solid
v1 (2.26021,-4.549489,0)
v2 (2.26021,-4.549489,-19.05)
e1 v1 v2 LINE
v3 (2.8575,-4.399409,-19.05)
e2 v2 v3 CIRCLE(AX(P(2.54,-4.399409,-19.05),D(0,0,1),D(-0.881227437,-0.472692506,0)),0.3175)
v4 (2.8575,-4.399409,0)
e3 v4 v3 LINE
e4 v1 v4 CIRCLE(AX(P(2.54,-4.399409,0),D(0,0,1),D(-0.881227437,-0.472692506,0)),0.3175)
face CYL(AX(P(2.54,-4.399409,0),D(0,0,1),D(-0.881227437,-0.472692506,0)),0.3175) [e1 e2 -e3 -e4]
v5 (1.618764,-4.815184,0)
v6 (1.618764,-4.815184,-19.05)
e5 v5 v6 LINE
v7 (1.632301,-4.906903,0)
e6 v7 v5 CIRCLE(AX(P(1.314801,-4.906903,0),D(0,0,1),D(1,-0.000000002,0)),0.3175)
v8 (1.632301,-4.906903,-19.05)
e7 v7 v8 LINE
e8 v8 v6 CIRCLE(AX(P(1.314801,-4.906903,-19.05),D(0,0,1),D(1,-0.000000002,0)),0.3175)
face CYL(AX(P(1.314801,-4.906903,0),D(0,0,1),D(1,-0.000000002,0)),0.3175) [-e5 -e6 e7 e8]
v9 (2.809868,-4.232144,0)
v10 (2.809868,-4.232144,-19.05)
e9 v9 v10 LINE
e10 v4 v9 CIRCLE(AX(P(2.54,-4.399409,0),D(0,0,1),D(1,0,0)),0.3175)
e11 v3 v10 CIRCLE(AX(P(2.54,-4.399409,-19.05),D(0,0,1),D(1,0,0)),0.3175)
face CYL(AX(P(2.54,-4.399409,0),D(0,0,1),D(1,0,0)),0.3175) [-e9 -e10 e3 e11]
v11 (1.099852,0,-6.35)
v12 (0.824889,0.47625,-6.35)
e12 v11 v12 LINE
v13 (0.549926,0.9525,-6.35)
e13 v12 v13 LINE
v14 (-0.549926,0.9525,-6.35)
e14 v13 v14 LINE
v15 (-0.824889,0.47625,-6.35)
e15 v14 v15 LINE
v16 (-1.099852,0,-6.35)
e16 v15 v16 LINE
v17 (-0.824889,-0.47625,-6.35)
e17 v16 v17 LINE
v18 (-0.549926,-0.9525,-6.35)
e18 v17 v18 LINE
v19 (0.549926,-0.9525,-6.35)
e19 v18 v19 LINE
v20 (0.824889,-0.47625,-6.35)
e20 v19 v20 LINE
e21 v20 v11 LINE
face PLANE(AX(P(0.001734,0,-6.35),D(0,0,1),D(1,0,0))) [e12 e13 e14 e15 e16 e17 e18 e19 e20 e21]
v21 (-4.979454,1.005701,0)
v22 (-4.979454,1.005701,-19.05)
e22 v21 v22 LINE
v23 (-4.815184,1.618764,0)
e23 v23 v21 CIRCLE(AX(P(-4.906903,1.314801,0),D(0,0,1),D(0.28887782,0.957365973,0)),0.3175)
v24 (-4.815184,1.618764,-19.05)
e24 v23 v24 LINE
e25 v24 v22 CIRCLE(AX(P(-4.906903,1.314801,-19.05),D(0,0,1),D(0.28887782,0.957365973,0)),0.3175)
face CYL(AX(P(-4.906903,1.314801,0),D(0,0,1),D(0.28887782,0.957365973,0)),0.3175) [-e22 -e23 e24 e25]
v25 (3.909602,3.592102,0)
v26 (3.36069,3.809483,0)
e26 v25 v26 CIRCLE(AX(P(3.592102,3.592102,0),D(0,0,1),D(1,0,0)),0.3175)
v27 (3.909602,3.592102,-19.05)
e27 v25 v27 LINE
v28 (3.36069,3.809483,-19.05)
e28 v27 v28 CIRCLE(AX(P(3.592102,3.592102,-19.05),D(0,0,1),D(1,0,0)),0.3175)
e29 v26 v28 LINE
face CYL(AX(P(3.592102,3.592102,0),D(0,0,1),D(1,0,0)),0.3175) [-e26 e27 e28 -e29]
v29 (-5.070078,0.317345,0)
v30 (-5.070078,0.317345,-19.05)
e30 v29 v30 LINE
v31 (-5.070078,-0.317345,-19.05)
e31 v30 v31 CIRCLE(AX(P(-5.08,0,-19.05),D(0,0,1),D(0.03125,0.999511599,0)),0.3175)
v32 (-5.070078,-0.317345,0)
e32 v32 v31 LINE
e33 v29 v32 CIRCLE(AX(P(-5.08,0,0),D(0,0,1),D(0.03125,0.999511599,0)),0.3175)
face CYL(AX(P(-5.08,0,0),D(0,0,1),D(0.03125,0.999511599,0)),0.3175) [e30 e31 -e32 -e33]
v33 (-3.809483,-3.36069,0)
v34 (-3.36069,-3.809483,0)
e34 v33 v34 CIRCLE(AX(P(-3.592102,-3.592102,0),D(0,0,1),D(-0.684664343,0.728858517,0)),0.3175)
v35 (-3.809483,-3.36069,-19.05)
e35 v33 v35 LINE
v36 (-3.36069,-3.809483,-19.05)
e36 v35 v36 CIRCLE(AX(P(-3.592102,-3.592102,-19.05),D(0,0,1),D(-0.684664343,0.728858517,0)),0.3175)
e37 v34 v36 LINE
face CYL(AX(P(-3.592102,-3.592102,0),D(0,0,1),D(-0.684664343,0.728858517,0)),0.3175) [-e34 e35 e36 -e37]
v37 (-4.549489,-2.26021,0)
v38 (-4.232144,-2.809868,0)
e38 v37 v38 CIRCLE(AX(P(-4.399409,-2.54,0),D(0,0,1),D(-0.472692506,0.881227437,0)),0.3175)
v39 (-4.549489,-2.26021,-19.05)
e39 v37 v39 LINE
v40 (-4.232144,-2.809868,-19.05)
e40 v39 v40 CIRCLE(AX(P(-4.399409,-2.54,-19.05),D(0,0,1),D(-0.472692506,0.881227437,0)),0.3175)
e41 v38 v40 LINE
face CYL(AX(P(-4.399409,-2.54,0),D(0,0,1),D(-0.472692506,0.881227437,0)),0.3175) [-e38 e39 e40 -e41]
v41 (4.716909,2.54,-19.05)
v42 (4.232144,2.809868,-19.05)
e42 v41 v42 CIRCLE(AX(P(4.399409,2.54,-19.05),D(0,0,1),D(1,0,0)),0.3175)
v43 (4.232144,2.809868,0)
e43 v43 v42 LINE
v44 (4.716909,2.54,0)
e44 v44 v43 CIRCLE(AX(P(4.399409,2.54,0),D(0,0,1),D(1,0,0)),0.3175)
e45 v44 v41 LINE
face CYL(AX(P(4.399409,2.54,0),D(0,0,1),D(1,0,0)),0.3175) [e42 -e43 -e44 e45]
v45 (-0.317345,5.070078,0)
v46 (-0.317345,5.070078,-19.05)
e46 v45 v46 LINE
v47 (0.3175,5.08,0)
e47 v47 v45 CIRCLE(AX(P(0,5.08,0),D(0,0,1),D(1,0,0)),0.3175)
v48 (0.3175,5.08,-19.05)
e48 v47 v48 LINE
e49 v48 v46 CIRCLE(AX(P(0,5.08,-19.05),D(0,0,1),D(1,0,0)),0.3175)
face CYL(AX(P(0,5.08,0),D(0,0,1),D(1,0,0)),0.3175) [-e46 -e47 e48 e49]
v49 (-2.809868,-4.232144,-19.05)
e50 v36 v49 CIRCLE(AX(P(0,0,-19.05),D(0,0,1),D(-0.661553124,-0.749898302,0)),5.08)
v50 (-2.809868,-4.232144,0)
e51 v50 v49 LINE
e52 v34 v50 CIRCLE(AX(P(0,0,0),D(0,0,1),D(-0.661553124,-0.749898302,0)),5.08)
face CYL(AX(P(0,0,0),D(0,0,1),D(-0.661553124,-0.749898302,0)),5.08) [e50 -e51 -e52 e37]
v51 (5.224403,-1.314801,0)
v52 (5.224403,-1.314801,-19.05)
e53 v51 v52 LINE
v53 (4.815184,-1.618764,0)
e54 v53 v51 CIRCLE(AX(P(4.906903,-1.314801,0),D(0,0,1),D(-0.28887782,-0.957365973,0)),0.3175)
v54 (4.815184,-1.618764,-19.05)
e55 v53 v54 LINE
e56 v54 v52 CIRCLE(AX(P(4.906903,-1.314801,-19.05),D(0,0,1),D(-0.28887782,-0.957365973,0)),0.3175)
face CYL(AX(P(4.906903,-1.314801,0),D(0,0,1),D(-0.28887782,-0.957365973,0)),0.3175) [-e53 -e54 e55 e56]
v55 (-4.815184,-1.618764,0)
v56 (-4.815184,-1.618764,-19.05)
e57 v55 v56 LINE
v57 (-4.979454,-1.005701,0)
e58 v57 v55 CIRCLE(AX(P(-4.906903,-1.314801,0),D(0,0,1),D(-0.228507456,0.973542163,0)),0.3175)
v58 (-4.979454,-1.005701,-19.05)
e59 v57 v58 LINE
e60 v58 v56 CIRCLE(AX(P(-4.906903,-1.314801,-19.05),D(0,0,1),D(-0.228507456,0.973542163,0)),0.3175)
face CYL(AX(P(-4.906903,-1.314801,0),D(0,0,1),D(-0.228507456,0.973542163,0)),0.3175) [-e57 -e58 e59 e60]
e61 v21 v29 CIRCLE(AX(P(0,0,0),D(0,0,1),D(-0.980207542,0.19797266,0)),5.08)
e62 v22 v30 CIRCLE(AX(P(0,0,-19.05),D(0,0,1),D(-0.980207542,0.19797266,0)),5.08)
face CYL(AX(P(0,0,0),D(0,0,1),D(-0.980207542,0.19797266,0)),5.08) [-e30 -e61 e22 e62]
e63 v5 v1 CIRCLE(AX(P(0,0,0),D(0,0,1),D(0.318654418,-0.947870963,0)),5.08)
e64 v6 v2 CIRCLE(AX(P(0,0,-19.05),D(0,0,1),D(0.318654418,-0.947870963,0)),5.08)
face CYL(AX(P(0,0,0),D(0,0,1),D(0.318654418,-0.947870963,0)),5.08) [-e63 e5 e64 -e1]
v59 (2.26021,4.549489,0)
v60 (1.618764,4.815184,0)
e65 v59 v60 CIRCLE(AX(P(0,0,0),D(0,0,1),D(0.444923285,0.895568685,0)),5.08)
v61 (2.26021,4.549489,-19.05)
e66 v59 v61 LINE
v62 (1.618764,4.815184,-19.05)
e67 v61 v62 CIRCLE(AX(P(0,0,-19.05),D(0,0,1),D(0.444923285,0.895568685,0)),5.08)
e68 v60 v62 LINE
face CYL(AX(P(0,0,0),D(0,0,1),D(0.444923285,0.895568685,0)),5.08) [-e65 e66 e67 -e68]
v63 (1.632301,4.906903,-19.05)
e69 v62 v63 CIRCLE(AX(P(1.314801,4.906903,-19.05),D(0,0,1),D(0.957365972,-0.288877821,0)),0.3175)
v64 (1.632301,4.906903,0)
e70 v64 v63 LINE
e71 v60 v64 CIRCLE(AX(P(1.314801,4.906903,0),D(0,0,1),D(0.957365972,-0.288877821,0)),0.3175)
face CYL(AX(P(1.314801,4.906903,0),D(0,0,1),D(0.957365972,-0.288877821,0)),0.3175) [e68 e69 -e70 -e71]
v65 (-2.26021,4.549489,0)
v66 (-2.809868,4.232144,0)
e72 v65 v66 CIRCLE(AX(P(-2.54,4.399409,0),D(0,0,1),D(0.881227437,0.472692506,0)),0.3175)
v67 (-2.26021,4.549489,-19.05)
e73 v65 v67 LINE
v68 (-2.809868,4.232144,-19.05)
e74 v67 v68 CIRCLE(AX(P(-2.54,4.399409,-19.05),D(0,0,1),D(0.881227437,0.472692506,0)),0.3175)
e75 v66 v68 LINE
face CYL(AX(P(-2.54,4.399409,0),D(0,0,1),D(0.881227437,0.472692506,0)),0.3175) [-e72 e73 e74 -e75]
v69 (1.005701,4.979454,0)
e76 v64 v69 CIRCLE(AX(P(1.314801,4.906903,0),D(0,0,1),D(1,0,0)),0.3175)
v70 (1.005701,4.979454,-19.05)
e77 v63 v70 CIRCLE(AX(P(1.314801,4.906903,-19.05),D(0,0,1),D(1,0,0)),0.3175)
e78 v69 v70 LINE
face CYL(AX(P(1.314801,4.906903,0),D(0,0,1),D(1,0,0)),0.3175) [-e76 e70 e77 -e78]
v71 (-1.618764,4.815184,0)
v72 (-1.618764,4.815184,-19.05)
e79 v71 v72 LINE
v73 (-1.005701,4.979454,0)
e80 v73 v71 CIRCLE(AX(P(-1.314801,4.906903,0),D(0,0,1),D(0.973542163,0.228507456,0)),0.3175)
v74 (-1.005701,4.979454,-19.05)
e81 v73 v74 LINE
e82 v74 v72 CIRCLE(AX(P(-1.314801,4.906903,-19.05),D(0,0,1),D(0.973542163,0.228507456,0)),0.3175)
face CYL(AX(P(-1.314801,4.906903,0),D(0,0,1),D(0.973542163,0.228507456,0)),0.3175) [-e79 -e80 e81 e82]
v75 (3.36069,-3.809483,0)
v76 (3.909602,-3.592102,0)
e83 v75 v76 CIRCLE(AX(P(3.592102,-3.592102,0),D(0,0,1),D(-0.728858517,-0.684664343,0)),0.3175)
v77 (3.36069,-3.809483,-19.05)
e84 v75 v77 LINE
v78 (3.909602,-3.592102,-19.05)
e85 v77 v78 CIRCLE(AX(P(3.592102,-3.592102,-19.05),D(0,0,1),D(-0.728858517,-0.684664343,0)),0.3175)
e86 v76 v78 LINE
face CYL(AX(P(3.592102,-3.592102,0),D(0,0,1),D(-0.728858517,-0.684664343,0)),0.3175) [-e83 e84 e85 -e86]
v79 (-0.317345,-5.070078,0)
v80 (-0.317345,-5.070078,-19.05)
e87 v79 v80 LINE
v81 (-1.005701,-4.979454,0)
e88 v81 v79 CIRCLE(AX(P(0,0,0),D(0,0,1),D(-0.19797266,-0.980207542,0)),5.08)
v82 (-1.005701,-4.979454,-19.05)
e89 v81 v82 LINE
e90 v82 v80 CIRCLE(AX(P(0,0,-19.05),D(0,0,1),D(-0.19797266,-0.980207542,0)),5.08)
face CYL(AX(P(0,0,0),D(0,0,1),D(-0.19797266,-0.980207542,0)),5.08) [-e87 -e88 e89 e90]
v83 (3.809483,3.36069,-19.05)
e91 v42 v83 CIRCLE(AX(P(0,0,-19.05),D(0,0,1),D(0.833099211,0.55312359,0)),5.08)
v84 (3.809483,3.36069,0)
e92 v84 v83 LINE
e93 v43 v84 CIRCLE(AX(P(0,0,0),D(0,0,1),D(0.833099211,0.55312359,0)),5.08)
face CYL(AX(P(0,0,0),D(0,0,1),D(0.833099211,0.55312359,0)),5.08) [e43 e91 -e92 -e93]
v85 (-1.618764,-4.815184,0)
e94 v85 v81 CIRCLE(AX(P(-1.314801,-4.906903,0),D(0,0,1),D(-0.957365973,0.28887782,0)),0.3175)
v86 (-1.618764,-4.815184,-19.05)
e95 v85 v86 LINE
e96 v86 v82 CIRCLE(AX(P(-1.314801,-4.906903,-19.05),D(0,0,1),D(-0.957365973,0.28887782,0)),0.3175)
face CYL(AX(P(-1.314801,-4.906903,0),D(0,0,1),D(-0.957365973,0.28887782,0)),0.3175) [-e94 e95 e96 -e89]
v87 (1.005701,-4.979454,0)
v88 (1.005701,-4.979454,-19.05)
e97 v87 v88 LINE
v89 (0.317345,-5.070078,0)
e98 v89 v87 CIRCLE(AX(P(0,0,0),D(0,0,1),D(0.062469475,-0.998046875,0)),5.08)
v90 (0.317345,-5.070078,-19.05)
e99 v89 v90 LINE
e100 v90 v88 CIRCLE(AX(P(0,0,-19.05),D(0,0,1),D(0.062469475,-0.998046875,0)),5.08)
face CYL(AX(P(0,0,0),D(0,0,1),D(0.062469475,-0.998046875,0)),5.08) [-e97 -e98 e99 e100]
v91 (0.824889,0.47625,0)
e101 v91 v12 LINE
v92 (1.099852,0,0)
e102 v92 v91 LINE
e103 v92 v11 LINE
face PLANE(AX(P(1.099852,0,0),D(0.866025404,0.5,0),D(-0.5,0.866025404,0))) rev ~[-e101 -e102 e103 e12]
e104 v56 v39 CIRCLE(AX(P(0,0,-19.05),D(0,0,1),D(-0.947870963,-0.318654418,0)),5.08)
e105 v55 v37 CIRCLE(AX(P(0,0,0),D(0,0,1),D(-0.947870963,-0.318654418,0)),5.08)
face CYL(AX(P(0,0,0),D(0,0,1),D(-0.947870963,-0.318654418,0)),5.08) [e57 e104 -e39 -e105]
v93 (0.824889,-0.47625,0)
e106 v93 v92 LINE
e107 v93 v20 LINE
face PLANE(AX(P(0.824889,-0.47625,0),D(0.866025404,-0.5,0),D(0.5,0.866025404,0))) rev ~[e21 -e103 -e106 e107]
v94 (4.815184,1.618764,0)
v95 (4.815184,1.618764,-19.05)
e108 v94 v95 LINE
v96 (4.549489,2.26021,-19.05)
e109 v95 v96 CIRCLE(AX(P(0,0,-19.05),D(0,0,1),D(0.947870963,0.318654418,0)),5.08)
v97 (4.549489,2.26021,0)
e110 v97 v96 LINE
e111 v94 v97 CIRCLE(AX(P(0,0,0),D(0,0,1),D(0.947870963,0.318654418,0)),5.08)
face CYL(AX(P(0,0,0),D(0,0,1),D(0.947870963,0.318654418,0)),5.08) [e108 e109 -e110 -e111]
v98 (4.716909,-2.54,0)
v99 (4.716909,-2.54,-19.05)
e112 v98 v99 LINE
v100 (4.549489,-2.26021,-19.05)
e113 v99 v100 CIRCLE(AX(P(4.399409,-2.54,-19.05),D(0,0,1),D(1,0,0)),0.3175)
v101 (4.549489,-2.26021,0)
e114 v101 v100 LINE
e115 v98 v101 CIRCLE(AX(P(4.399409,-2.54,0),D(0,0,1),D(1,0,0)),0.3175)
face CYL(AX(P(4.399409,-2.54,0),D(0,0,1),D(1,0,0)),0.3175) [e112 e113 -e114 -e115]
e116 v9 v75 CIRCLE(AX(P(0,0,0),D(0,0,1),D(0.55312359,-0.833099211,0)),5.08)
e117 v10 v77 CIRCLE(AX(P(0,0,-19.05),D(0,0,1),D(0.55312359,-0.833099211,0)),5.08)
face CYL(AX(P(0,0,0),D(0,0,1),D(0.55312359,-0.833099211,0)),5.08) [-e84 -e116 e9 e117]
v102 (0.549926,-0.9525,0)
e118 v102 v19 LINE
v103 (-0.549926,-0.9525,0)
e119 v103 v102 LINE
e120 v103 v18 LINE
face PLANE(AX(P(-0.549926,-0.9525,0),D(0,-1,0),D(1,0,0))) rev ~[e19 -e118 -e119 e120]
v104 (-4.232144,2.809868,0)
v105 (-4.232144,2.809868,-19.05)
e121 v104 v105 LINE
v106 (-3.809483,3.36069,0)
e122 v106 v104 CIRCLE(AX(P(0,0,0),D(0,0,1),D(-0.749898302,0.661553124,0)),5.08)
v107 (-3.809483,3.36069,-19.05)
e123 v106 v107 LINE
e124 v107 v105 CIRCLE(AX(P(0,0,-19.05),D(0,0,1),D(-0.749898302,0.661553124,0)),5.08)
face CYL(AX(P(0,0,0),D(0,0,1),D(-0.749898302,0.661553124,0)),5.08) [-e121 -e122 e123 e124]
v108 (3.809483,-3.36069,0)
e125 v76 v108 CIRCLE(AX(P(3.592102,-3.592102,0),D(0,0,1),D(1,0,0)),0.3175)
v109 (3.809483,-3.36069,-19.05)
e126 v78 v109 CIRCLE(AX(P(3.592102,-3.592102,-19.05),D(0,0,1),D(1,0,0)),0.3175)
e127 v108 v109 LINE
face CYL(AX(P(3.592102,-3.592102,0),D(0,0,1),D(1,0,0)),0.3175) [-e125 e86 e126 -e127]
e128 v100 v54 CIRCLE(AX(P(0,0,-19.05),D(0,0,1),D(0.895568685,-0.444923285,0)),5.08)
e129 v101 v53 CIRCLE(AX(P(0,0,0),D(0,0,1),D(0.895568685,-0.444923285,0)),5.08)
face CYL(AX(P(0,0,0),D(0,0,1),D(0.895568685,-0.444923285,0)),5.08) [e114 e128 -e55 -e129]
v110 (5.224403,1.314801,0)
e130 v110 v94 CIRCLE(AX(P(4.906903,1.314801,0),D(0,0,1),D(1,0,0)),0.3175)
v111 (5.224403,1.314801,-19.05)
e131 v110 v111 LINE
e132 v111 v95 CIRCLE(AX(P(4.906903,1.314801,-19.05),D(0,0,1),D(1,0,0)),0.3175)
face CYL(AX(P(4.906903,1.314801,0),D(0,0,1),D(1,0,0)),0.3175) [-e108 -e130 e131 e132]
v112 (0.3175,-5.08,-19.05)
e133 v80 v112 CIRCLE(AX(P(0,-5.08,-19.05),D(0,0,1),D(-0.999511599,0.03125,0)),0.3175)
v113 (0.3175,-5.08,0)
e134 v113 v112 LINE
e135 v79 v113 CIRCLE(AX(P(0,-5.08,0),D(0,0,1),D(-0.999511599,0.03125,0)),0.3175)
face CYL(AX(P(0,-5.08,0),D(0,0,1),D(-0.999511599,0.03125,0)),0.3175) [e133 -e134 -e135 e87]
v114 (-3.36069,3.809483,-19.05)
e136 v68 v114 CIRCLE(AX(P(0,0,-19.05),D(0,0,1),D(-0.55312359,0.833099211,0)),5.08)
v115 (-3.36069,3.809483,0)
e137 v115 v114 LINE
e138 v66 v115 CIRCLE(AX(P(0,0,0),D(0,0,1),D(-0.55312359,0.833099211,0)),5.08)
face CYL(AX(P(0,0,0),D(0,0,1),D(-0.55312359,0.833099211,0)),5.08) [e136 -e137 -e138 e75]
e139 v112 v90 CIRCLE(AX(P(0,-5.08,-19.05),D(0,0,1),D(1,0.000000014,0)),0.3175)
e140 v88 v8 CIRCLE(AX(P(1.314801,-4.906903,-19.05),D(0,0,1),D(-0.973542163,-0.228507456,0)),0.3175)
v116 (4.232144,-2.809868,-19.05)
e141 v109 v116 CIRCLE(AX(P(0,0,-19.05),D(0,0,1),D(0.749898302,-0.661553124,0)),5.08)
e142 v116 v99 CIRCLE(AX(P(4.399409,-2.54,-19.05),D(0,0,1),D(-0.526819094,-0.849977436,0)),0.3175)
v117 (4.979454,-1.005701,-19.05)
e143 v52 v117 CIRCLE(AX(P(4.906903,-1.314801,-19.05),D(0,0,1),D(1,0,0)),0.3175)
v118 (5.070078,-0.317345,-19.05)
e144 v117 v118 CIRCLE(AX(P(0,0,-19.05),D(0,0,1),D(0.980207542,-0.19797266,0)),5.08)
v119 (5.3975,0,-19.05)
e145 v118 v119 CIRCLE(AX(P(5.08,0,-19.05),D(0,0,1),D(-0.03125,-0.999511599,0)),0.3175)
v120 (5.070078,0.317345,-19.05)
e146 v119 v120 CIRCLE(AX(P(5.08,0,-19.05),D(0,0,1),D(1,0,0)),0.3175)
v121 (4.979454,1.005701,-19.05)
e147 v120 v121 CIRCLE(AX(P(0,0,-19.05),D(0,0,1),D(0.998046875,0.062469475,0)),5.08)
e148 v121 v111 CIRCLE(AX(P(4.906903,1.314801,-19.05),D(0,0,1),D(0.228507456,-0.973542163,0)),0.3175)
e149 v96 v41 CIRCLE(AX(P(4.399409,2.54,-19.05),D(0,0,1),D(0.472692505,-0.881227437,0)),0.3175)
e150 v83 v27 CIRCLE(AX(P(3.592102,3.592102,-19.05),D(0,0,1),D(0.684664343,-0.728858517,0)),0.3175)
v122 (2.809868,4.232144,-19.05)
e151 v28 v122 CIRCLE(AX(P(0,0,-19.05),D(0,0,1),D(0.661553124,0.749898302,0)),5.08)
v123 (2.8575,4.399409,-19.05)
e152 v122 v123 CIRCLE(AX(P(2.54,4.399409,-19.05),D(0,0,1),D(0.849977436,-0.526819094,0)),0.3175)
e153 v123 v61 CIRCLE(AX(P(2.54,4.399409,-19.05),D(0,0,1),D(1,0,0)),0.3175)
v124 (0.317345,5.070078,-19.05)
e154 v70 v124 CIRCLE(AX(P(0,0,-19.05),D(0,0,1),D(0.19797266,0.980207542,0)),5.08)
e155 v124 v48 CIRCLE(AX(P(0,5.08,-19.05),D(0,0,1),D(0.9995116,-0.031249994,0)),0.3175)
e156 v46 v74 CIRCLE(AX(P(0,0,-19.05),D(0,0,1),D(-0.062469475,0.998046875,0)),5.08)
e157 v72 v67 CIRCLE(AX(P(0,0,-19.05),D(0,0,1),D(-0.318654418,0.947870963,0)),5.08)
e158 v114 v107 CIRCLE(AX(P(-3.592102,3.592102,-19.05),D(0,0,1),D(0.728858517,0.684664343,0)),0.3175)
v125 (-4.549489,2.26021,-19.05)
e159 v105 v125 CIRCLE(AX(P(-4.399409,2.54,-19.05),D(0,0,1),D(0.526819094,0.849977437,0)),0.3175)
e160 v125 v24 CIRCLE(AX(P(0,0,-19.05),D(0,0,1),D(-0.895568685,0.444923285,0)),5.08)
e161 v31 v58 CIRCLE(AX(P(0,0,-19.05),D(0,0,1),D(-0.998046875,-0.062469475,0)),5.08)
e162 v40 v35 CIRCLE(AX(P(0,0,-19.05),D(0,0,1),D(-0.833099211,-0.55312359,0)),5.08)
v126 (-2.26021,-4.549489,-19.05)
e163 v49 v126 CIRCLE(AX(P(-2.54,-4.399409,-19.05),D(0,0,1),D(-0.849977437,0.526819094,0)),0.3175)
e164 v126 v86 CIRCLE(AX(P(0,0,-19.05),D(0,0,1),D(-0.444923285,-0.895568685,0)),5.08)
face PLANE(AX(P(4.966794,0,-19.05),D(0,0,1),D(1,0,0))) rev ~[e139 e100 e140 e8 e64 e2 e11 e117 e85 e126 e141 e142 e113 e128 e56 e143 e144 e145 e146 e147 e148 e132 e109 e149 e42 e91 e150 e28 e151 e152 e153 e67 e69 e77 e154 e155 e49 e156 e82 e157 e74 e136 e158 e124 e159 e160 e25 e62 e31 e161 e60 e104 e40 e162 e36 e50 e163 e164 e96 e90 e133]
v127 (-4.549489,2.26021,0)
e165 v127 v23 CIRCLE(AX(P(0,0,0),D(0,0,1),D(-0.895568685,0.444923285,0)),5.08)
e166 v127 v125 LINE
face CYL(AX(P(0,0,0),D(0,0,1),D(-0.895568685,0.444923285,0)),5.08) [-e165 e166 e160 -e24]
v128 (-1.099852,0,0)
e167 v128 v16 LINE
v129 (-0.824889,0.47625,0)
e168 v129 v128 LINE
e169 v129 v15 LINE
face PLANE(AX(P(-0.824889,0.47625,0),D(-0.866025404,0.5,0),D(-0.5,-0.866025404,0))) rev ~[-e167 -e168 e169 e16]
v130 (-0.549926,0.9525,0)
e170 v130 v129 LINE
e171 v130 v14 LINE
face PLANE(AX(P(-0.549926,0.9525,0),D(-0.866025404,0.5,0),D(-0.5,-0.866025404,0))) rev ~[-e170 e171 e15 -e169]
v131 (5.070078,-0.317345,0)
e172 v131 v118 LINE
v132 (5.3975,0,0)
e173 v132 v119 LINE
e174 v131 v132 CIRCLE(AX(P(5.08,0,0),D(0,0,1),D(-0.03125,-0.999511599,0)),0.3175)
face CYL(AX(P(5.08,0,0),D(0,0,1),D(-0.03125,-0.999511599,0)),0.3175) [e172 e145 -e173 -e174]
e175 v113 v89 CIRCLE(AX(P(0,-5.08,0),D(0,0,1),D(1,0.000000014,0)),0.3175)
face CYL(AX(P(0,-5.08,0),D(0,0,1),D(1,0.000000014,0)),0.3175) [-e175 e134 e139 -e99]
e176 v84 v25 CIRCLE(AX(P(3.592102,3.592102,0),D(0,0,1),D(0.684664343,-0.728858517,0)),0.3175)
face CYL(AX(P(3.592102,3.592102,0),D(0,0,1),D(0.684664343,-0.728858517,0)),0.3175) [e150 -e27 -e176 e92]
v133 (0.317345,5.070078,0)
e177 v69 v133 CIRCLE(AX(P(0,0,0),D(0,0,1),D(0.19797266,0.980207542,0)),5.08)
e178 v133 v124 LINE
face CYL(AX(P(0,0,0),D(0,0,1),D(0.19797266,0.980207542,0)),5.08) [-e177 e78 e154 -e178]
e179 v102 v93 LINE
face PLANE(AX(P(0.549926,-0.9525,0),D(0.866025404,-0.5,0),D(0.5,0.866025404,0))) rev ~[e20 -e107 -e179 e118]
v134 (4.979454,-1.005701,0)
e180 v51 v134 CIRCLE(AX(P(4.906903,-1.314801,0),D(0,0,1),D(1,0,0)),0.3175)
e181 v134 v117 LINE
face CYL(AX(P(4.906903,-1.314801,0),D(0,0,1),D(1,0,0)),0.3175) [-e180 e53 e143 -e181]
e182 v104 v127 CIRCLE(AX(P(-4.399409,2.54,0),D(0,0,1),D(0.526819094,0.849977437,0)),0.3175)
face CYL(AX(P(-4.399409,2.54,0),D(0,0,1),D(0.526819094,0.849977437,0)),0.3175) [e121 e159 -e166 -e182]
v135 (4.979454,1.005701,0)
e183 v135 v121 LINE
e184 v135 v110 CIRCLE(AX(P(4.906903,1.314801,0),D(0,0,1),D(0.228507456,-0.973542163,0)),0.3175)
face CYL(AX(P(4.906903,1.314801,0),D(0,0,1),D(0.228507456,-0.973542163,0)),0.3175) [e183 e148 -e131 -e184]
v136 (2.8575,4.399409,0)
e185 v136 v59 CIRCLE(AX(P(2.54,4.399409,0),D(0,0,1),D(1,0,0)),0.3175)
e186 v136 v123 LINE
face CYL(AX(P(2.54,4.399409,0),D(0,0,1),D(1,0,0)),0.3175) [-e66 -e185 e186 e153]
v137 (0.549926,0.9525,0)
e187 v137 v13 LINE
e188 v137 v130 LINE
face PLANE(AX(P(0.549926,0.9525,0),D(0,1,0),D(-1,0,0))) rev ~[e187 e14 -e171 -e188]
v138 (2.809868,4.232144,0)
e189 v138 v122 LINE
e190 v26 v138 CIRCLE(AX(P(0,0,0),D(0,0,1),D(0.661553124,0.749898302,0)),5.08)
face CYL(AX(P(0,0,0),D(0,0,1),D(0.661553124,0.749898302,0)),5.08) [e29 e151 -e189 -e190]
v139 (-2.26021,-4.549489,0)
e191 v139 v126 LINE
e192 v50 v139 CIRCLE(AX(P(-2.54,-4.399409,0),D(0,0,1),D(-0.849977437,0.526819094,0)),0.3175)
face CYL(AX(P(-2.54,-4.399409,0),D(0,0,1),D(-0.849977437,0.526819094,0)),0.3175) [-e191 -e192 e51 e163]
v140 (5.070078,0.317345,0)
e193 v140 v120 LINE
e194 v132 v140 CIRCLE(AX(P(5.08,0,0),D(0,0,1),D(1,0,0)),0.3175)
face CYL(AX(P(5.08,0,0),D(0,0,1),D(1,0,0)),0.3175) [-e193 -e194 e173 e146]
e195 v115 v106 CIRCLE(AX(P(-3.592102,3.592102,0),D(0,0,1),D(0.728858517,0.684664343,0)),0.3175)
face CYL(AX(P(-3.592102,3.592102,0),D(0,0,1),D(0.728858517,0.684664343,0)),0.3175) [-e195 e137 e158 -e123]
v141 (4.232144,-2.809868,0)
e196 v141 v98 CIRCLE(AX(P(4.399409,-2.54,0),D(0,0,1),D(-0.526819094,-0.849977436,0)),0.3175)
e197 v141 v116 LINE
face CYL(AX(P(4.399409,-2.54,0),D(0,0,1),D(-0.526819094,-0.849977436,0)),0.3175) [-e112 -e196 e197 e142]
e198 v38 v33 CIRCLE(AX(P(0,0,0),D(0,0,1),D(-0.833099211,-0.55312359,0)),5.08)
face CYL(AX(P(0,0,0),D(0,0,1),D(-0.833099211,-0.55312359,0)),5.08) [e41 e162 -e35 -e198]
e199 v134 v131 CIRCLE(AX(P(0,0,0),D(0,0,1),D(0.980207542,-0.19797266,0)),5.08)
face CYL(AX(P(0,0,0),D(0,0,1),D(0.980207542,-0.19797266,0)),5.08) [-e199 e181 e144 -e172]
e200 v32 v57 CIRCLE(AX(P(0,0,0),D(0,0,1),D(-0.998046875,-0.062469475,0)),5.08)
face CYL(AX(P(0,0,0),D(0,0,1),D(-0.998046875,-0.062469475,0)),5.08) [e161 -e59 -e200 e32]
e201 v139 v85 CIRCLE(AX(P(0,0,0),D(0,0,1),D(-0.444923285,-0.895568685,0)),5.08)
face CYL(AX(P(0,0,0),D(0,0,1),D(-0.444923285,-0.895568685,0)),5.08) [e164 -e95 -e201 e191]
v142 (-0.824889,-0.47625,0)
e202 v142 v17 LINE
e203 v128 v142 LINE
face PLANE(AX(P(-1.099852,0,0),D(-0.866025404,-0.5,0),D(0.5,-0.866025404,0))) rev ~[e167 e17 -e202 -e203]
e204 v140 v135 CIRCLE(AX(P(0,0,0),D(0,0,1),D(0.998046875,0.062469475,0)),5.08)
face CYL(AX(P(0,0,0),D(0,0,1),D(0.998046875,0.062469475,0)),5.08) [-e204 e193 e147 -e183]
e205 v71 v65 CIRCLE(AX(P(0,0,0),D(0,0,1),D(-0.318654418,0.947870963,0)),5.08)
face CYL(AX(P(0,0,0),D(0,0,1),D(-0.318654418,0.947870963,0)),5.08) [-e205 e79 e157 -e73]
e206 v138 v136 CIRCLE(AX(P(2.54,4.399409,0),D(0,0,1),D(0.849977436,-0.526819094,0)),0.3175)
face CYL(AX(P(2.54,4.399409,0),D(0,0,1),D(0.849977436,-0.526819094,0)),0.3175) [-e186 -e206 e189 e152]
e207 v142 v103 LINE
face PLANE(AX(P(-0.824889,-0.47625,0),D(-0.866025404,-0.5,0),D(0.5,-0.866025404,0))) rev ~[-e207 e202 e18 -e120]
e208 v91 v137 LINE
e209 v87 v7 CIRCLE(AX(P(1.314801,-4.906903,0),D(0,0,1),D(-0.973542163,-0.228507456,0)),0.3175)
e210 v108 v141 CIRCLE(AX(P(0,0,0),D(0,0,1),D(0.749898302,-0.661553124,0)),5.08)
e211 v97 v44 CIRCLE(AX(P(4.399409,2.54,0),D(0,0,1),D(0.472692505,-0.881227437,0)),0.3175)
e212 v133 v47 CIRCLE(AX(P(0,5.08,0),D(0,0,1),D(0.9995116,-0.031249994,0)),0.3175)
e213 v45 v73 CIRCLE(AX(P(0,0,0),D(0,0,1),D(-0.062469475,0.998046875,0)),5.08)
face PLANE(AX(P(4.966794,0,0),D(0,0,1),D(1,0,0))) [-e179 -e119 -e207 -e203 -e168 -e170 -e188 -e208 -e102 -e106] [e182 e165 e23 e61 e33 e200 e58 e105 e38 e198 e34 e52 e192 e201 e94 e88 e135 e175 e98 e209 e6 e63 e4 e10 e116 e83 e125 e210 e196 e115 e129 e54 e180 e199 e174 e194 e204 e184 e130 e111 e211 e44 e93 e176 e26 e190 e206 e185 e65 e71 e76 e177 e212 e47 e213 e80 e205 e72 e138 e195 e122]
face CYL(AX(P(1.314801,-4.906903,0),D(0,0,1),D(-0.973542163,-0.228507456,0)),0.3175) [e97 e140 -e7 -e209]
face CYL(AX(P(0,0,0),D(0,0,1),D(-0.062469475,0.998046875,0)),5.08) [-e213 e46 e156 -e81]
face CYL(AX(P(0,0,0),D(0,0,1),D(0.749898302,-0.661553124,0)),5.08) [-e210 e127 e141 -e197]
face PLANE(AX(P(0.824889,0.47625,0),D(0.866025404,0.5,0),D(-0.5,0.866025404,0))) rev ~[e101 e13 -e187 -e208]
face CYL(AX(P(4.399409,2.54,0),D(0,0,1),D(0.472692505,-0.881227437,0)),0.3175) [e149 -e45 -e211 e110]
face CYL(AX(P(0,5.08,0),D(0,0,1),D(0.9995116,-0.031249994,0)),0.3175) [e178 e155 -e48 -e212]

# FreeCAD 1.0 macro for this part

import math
import FreeCAD as App
import Part
import Sketcher
from FreeCAD import Vector
Q = App.Units.Quantity


def add_polygon(sketch, points):
    """Adds a closed chain of lines whose ends are joined by coincident constraints."""
    first, n = sketch.GeometryCount, len(points)
    for a, b in zip(points, points[1:] + points[:1]):
        sketch.addGeometry(Part.LineSegment(App.Vector(*a, 0), App.Vector(*b, 0)), False)
    for i in range(n):
        sketch.addConstraint(Sketcher.Constraint("Coincident", first + i, 2, first + (i + 1) % n, 1))

doc = App.newDocument("Part")
body = doc.addObject("PartDesign::Body", "Body")

# Sketch on XY plane
sketch1 = body.newObject("Sketcher::SketchObject", "Sketch")
sketch1.AttachmentSupport = (doc.getObject("XY_Plane"), [""])
sketch1.MapMode = "FlatFace"
sketch1.addGeometry(Part.ArcOfCircle(Part.Circle(Vector(5.08, 0, 0), Vector(0, 0, 1), 0.318), math.radians(-92), math.radians(0)), False)
sketch1.addGeometry(Part.ArcOfCircle(Part.Circle(Vector(5.08, 0, 0), Vector(0, 0, 1), 0.318), math.radians(0), math.radians(92)), False)
sketch1.addGeometry(Part.ArcOfCircle(Part.Circle(Vector(0, 0, 0), Vector(0, 0, 1), 5.08), math.radians(3.58), math.radians(11.42)), False)
sketch1.addGeometry(Part.ArcOfCircle(Part.Circle(Vector(4.907, 1.315, 0), Vector(0, 0, 1), 0.318), math.radians(-77), math.radians(0)), False)
sketch1.addGeometry(Part.ArcOfCircle(Part.Circle(Vector(4.907, 1.315, 0), Vector(0, 0, 1), 0.318), math.radians(0), math.radians(107)), False)
sketch1.addGeometry(Part.ArcOfCircle(Part.Circle(Vector(0, 0, 0), Vector(0, 0, 1), 5.08), math.radians(18.58), math.radians(26.42)), False)
sketch1.addGeometry(Part.ArcOfCircle(Part.Circle(Vector(4.399, 2.54, 0), Vector(0, 0, 1), 0.318), math.radians(-62), math.radians(0)), False)
sketch1.addGeometry(Part.ArcOfCircle(Part.Circle(Vector(4.399, 2.54, 0), Vector(0, 0, 1), 0.318), math.radians(0), math.radians(122)), False)
sketch1.addGeometry(Part.ArcOfCircle(Part.Circle(Vector(0, 0, 0), Vector(0, 0, 1), 5.08), math.radians(33.58), math.radians(41.42)), False)
sketch1.addGeometry(Part.ArcOfCircle(Part.Circle(Vector(3.592, 3.592, 0), Vector(0, 0, 1), 0.318), math.radians(-47), math.radians(0)), False)
sketch1.addGeometry(Part.ArcOfCircle(Part.Circle(Vector(3.592, 3.592, 0), Vector(0, 0, 1), 0.318), math.radians(0), math.radians(137)), False)
sketch1.addGeometry(Part.ArcOfCircle(Part.Circle(Vector(0, 0, 0), Vector(0, 0, 1), 5.08), math.radians(48.58), math.radians(56.42)), False)
sketch1.addGeometry(Part.ArcOfCircle(Part.Circle(Vector(2.54, 4.399, 0), Vector(0, 0, 1), 0.318), math.radians(-32), math.radians(0)), False)
sketch1.addGeometry(Part.ArcOfCircle(Part.Circle(Vector(2.54, 4.399, 0), Vector(0, 0, 1), 0.318), math.radians(0), math.radians(152)), False)
sketch1.addGeometry(Part.ArcOfCircle(Part.Circle(Vector(0, 0, 0), Vector(0, 0, 1), 5.08), math.radians(63.58), math.radians(71.42)), False)
sketch1.addGeometry(Part.ArcOfCircle(Part.Circle(Vector(1.315, 4.907, 0), Vector(0, 0, 1), 0.317), math.radians(-16.79), math.radians(0)), False)
sketch1.addGeometry(Part.ArcOfCircle(Part.Circle(Vector(1.315, 4.907, 0), Vector(0, 0, 1), 0.318), math.radians(0), math.radians(167)), False)
sketch1.addGeometry(Part.ArcOfCircle(Part.Circle(Vector(0, 0, 0), Vector(0, 0, 1), 5.08), math.radians(78.58), math.radians(86.42)), False)
sketch1.addGeometry(Part.ArcOfCircle(Part.Circle(Vector(0, 5.08, 0), Vector(0, 0, 1), 0.318), math.radians(-1.79), math.radians(0)), False)
sketch1.addGeometry(Part.ArcOfCircle(Part.Circle(Vector(0, 5.08, 0), Vector(0, 0, 1), 0.318), math.radians(0), math.radians(182)), False)
sketch1.addGeometry(Part.ArcOfCircle(Part.Circle(Vector(0, 0, 0), Vector(0, 0, 1), 5.08), math.radians(93.58), math.radians(101.42)), False)
sketch1.addGeometry(Part.ArcOfCircle(Part.Circle(Vector(-1.315, 4.907, 0), Vector(0, 0, 1), 0.318), math.radians(13), math.radians(197)), False)
sketch1.addGeometry(Part.ArcOfCircle(Part.Circle(Vector(0, 0, 0), Vector(0, 0, 1), 5.08), math.radians(108.58), math.radians(116.42)), False)
sketch1.addGeometry(Part.ArcOfCircle(Part.Circle(Vector(-2.54, 4.399, 0), Vector(0, 0, 1), 0.318), math.radians(28), math.radians(212)), False)
sketch1.addGeometry(Part.ArcOfCircle(Part.Circle(Vector(0, 0, 0), Vector(0, 0, 1), 5.08), math.radians(123.58), math.radians(131.42)), False)
sketch1.addGeometry(Part.ArcOfCircle(Part.Circle(Vector(-3.592, 3.592, 0), Vector(0, 0, 1), 0.318), math.radians(43), math.radians(227)), False)
sketch1.addGeometry(Part.ArcOfCircle(Part.Circle(Vector(0, 0, 0), Vector(0, 0, 1), 5.08), math.radians(138.58), math.radians(146.42)), False)
sketch1.addGeometry(Part.ArcOfCircle(Part.Circle(Vector(-4.399, 2.54, 0), Vector(0, 0, 1), 0.318), math.radians(58), math.radians(242)), False)
sketch1.addGeometry(Part.ArcOfCircle(Part.Circle(Vector(0, 0, 0), Vector(0, 0, 1), 5.08), math.radians(153.58), math.radians(161.42)), False)
sketch1.addGeometry(Part.ArcOfCircle(Part.Circle(Vector(-4.907, 1.315, 0), Vector(0, 0, 1), 0.318), math.radians(73), math.radians(257)), False)
sketch1.addGeometry(Part.ArcOfCircle(Part.Circle(Vector(0, 0, 0), Vector(0, 0, 1), 5.08), math.radians(168.58), math.radians(176.42)), False)
sketch1.addGeometry(Part.ArcOfCircle(Part.Circle(Vector(-5.08, 0, 0), Vector(0, 0, 1), 0.318), math.radians(88), math.radians(272)), False)
sketch1.addGeometry(Part.ArcOfCircle(Part.Circle(Vector(0, 0, 0), Vector(0, 0, 1), 5.08), math.radians(-176.42), math.radians(-168.58)), False)
sketch1.addGeometry(Part.ArcOfCircle(Part.Circle(Vector(-4.907, -1.315, 0), Vector(0, 0, 1), 0.318), math.radians(103), math.radians(287)), False)
sketch1.addGeometry(Part.ArcOfCircle(Part.Circle(Vector(0, 0, 0), Vector(0, 0, 1), 5.08), math.radians(-161.42), math.radians(-153.58)), False)
sketch1.addGeometry(Part.ArcOfCircle(Part.Circle(Vector(-4.399, -2.54, 0), Vector(0, 0, 1), 0.318), math.radians(118), math.radians(302)), False)
sketch1.addGeometry(Part.ArcOfCircle(Part.Circle(Vector(0, 0, 0), Vector(0, 0, 1), 5.08), math.radians(-146.42), math.radians(-138.58)), False)
sketch1.addGeometry(Part.ArcOfCircle(Part.Circle(Vector(-3.592, -3.592, 0), Vector(0, 0, 1), 0.318), math.radians(133), math.radians(317)), False)
sketch1.addGeometry(Part.ArcOfCircle(Part.Circle(Vector(0, 0, 0), Vector(0, 0, 1), 5.08), math.radians(-131.42), math.radians(-123.58)), False)
sketch1.addGeometry(Part.ArcOfCircle(Part.Circle(Vector(-2.54, -4.399, 0), Vector(0, 0, 1), 0.318), math.radians(148), math.radians(332)), False)
sketch1.addGeometry(Part.ArcOfCircle(Part.Circle(Vector(0, 0, 0), Vector(0, 0, 1), 5.08), math.radians(-116.42), math.radians(-108.58)), False)
sketch1.addGeometry(Part.ArcOfCircle(Part.Circle(Vector(-1.315, -4.907, 0), Vector(0, 0, 1), 0.318), math.radians(163), math.radians(347)), False)
sketch1.addGeometry(Part.ArcOfCircle(Part.Circle(Vector(0, 0, 0), Vector(0, 0, 1), 5.08), math.radians(-101.42), math.radians(-93.58)), False)
sketch1.addGeometry(Part.ArcOfCircle(Part.Circle(Vector(0, -5.08, 0), Vector(0, 0, 1), 0.318), math.radians(178), math.radians(360)), False)
sketch1.addGeometry(Part.ArcOfCircle(Part.Circle(Vector(0, -5.08, 0), Vector(0, 0, 1), 0.318), math.radians(0), math.radians(1.79)), False)
sketch1.addGeometry(Part.ArcOfCircle(Part.Circle(Vector(0, 0, 0), Vector(0, 0, 1), 5.08), math.radians(-86.42), math.radians(-78.58)), False)
sketch1.addGeometry(Part.ArcOfCircle(Part.Circle(Vector(1.315, -4.907, 0), Vector(0, 0, 1), 0.318), math.radians(-167), math.radians(0)), False)
sketch1.addGeometry(Part.ArcOfCircle(Part.Circle(Vector(1.315, -4.907, 0), Vector(0, 0, 1), 0.317), math.radians(0), math.radians(16.79)), False)
sketch1.addGeometry(Part.ArcOfCircle(Part.Circle(Vector(0, 0, 0), Vector(0, 0, 1), 5.08), math.radians(-71.42), math.radians(-63.58)), False)
sketch1.addGeometry(Part.ArcOfCircle(Part.Circle(Vector(2.54, -4.399, 0), Vector(0, 0, 1), 0.318), math.radians(-152), math.radians(0)), False)
sketch1.addGeometry(Part.ArcOfCircle(Part.Circle(Vector(2.54, -4.399, 0), Vector(0, 0, 1), 0.318), math.radians(0), math.radians(32)), False)
sketch1.addGeometry(Part.ArcOfCircle(Part.Circle(Vector(0, 0, 0), Vector(0, 0, 1), 5.08), math.radians(-56.42), math.radians(-48.58)), False)
sketch1.addGeometry(Part.ArcOfCircle(Part.Circle(Vector(3.592, -3.592, 0), Vector(0, 0, 1), 0.318), math.radians(-137), math.radians(0)), False)
sketch1.addGeometry(Part.ArcOfCircle(Part.Circle(Vector(3.592, -3.592, 0), Vector(0, 0, 1), 0.318), math.radians(0), math.radians(47)), False)
sketch1.addGeometry(Part.ArcOfCircle(Part.Circle(Vector(0, 0, 0), Vector(0, 0, 1), 5.08), math.radians(-41.42), math.radians(-33.58)), False)
sketch1.addGeometry(Part.ArcOfCircle(Part.Circle(Vector(4.399, -2.54, 0), Vector(0, 0, 1), 0.318), math.radians(-122), math.radians(0)), False)
sketch1.addGeometry(Part.ArcOfCircle(Part.Circle(Vector(4.399, -2.54, 0), Vector(0, 0, 1), 0.318), math.radians(0), math.radians(62)), False)
sketch1.addGeometry(Part.ArcOfCircle(Part.Circle(Vector(0, 0, 0), Vector(0, 0, 1), 5.08), math.radians(-26.42), math.radians(-18.58)), False)
sketch1.addGeometry(Part.ArcOfCircle(Part.Circle(Vector(4.907, -1.315, 0), Vector(0, 0, 1), 0.318), math.radians(-107), math.radians(0)), False)
sketch1.addGeometry(Part.ArcOfCircle(Part.Circle(Vector(4.907, -1.315, 0), Vector(0, 0, 1), 0.318), math.radians(0), math.radians(77)), False)
sketch1.addGeometry(Part.ArcOfCircle(Part.Circle(Vector(0, 0, 0), Vector(0, 0, 1), 5.08), math.radians(-11.42), math.radians(-3.58)), False)
sketch1.addConstraint(Sketcher.Constraint("Tangent", 0, 2, 1, 1))
sketch1.addConstraint(Sketcher.Constraint("Coincident", 1, 2, 2, 1))
sketch1.addConstraint(Sketcher.Constraint("Coincident", 2, 2, 3, 1))
sketch1.addConstraint(Sketcher.Constraint("Tangent", 3, 2, 4, 1))
sketch1.addConstraint(Sketcher.Constraint("Coincident", 4, 2, 5, 1))
sketch1.addConstraint(Sketcher.Constraint("Coincident", 5, 2, 6, 1))
sketch1.addConstraint(Sketcher.Constraint("Tangent", 6, 2, 7, 1))
sketch1.addConstraint(Sketcher.Constraint("Coincident", 7, 2, 8, 1))
sketch1.addConstraint(Sketcher.Constraint("Coincident", 8, 2, 9, 1))
sketch1.addConstraint(Sketcher.Constraint("Tangent", 9, 2, 10, 1))
sketch1.addConstraint(Sketcher.Constraint("Coincident", 10, 2, 11, 1))
sketch1.addConstraint(Sketcher.Constraint("Coincident", 11, 2, 12, 1))
sketch1.addConstraint(Sketcher.Constraint("Tangent", 12, 2, 13, 1))
sketch1.addConstraint(Sketcher.Constraint("Coincident", 13, 2, 14, 1))
sketch1.addConstraint(Sketcher.Constraint("Coincident", 14, 2, 15, 1))
sketch1.addConstraint(Sketcher.Constraint("Tangent", 15, 2, 16, 1))
sketch1.addConstraint(Sketcher.Constraint("Coincident", 16, 2, 17, 1))
sketch1.addConstraint(Sketcher.Constraint("Coincident", 17, 2, 18, 1))
sketch1.addConstraint(Sketcher.Constraint("Tangent", 18, 2, 19, 1))
sketch1.addConstraint(Sketcher.Constraint("Coincident", 19, 2, 20, 1))
sketch1.addConstraint(Sketcher.Constraint("Coincident", 20, 2, 21, 1))
sketch1.addConstraint(Sketcher.Constraint("Coincident", 21, 2, 22, 1))
sketch1.addConstraint(Sketcher.Constraint("Coincident", 22, 2, 23, 1))
sketch1.addConstraint(Sketcher.Constraint("Coincident", 23, 2, 24, 1))
sketch1.addConstraint(Sketcher.Constraint("Coincident", 24, 2, 25, 1))
sketch1.addConstraint(Sketcher.Constraint("Coincident", 25, 2, 26, 1))
sketch1.addConstraint(Sketcher.Constraint("Coincident", 26, 2, 27, 1))
sketch1.addConstraint(Sketcher.Constraint("Coincident", 27, 2, 28, 1))
sketch1.addConstraint(Sketcher.Constraint("Coincident", 28, 2, 29, 1))
sketch1.addConstraint(Sketcher.Constraint("Coincident", 29, 2, 30, 1))
sketch1.addConstraint(Sketcher.Constraint("Coincident", 30, 2, 31, 1))
sketch1.addConstraint(Sketcher.Constraint("Coincident", 31, 2, 32, 1))
sketch1.addConstraint(Sketcher.Constraint("Coincident", 32, 2, 33, 1))
sketch1.addConstraint(Sketcher.Constraint("Coincident", 33, 2, 34, 1))
sketch1.addConstraint(Sketcher.Constraint("Coincident", 34, 2, 35, 1))
sketch1.addConstraint(Sketcher.Constraint("Coincident", 35, 2, 36, 1))
sketch1.addConstraint(Sketcher.Constraint("Coincident", 36, 2, 37, 1))
sketch1.addConstraint(Sketcher.Constraint("Coincident", 37, 2, 38, 1))
sketch1.addConstraint(Sketcher.Constraint("Coincident", 38, 2, 39, 1))
sketch1.addConstraint(Sketcher.Constraint("Coincident", 39, 2, 40, 1))
sketch1.addConstraint(Sketcher.Constraint("Coincident", 40, 2, 41, 1))
sketch1.addConstraint(Sketcher.Constraint("Coincident", 41, 2, 42, 1))
sketch1.addConstraint(Sketcher.Constraint("Coincident", 42, 2, 43, 1))
sketch1.addConstraint(Sketcher.Constraint("Tangent", 43, 2, 44, 1))
sketch1.addConstraint(Sketcher.Constraint("Coincident", 44, 2, 45, 1))
sketch1.addConstraint(Sketcher.Constraint("Coincident", 45, 2, 46, 1))
sketch1.addConstraint(Sketcher.Constraint("Tangent", 46, 2, 47, 1))
sketch1.addConstraint(Sketcher.Constraint("Coincident", 47, 2, 48, 1))
sketch1.addConstraint(Sketcher.Constraint("Coincident", 48, 2, 49, 1))
sketch1.addConstraint(Sketcher.Constraint("Tangent", 49, 2, 50, 1))
sketch1.addConstraint(Sketcher.Constraint("Coincident", 50, 2, 51, 1))
sketch1.addConstraint(Sketcher.Constraint("Coincident", 51, 2, 52, 1))
sketch1.addConstraint(Sketcher.Constraint("Tangent", 52, 2, 53, 1))
sketch1.addConstraint(Sketcher.Constraint("Coincident", 53, 2, 54, 1))
sketch1.addConstraint(Sketcher.Constraint("Coincident", 54, 2, 55, 1))
sketch1.addConstraint(Sketcher.Constraint("Tangent", 55, 2, 56, 1))
sketch1.addConstraint(Sketcher.Constraint("Coincident", 56, 2, 57, 1))
sketch1.addConstraint(Sketcher.Constraint("Coincident", 57, 2, 58, 1))
sketch1.addConstraint(Sketcher.Constraint("Tangent", 58, 2, 59, 1))
sketch1.addConstraint(Sketcher.Constraint("Coincident", 59, 2, 60, 1))
sketch1.addConstraint(Sketcher.Constraint("Coincident", 60, 2, 0, 1))
sketch1.addConstraint(Sketcher.Constraint("Coincident", 2, 3, -1, 1))
sketch1.addConstraint(Sketcher.Constraint("Coincident", 5, 3, -1, 1))
sketch1.addConstraint(Sketcher.Constraint("Coincident", 8, 3, -1, 1))
sketch1.addConstraint(Sketcher.Constraint("Coincident", 11, 3, -1, 1))
sketch1.addConstraint(Sketcher.Constraint("Coincident", 14, 3, -1, 1))
sketch1.addConstraint(Sketcher.Constraint("Coincident", 17, 3, -1, 1))
sketch1.addConstraint(Sketcher.Constraint("Coincident", 20, 3, -1, 1))
sketch1.addConstraint(Sketcher.Constraint("Coincident", 22, 3, -1, 1))
sketch1.addConstraint(Sketcher.Constraint("Coincident", 24, 3, -1, 1))
sketch1.addConstraint(Sketcher.Constraint("Coincident", 26, 3, -1, 1))
sketch1.addConstraint(Sketcher.Constraint("Coincident", 28, 3, -1, 1))
sketch1.addConstraint(Sketcher.Constraint("Coincident", 30, 3, -1, 1))
sketch1.addConstraint(Sketcher.Constraint("Coincident", 32, 3, -1, 1))
sketch1.addConstraint(Sketcher.Constraint("Coincident", 34, 3, -1, 1))
sketch1.addConstraint(Sketcher.Constraint("Coincident", 36, 3, -1, 1))
sketch1.addConstraint(Sketcher.Constraint("Coincident", 38, 3, -1, 1))
sketch1.addConstraint(Sketcher.Constraint("Coincident", 40, 3, -1, 1))
sketch1.addConstraint(Sketcher.Constraint("Coincident", 42, 3, -1, 1))
sketch1.addConstraint(Sketcher.Constraint("Coincident", 45, 3, -1, 1))
sketch1.addConstraint(Sketcher.Constraint("Coincident", 48, 3, -1, 1))
sketch1.addConstraint(Sketcher.Constraint("Coincident", 51, 3, -1, 1))
sketch1.addConstraint(Sketcher.Constraint("Coincident", 54, 3, -1, 1))
sketch1.addConstraint(Sketcher.Constraint("Coincident", 57, 3, -1, 1))
sketch1.addConstraint(Sketcher.Constraint("Coincident", 60, 3, -1, 1))
sketch1.addConstraint(Sketcher.Constraint("Equal", 0, 1))
sketch1.addConstraint(Sketcher.Constraint("Equal", 1, 3))
sketch1.addConstraint(Sketcher.Constraint("Equal", 3, 4))
sketch1.addConstraint(Sketcher.Constraint("Equal", 2, 5))
sketch1.addConstraint(Sketcher.Constraint("Equal", 4, 6))
sketch1.addConstraint(Sketcher.Constraint("Equal", 6, 7))
sketch1.addConstraint(Sketcher.Constraint("Equal", 5, 8))
sketch1.addConstraint(Sketcher.Constraint("Equal", 7, 9))
sketch1.addConstraint(Sketcher.Constraint("Equal", 9, 10))
sketch1.addConstraint(Sketcher.Constraint("Equal", 8, 11))
sketch1.addConstraint(Sketcher.Constraint("Equal", 10, 12))
sketch1.addConstraint(Sketcher.Constraint("Equal", 12, 13))
sketch1.addConstraint(Sketcher.Constraint("Equal", 11, 14))
sketch1.addConstraint(Sketcher.Constraint("Equal", 13, 15))
sketch1.addConstraint(Sketcher.Constraint("Equal", 15, 16))
sketch1.addConstraint(Sketcher.Constraint("Equal", 14, 17))
sketch1.addConstraint(Sketcher.Constraint("Equal", 16, 18))
sketch1.addConstraint(Sketcher.Constraint("Equal", 18, 19))
sketch1.addConstraint(Sketcher.Constraint("Equal", 17, 20))
sketch1.addConstraint(Sketcher.Constraint("Equal", 19, 21))
sketch1.addConstraint(Sketcher.Constraint("Equal", 20, 22))
sketch1.addConstraint(Sketcher.Constraint("Equal", 21, 23))
sketch1.addConstraint(Sketcher.Constraint("Equal", 22, 24))
sketch1.addConstraint(Sketcher.Constraint("Equal", 23, 25))
sketch1.addConstraint(Sketcher.Constraint("Equal", 24, 26))
sketch1.addConstraint(Sketcher.Constraint("Equal", 25, 27))
sketch1.addConstraint(Sketcher.Constraint("Equal", 26, 28))
sketch1.addConstraint(Sketcher.Constraint("Equal", 27, 29))
sketch1.addConstraint(Sketcher.Constraint("Equal", 28, 30))
sketch1.addConstraint(Sketcher.Constraint("Equal", 29, 31))
sketch1.addConstraint(Sketcher.Constraint("Equal", 30, 32))
sketch1.addConstraint(Sketcher.Constraint("Equal", 31, 33))
sketch1.addConstraint(Sketcher.Constraint("Equal", 32, 34))
sketch1.addConstraint(Sketcher.Constraint("Equal", 33, 35))
sketch1.addConstraint(Sketcher.Constraint("Equal", 34, 36))
sketch1.addConstraint(Sketcher.Constraint("Equal", 35, 37))
sketch1.addConstraint(Sketcher.Constraint("Equal", 36, 38))
sketch1.addConstraint(Sketcher.Constraint("Equal", 37, 39))
sketch1.addConstraint(Sketcher.Constraint("Equal", 38, 40))
sketch1.addConstraint(Sketcher.Constraint("Equal", 39, 41))
sketch1.addConstraint(Sketcher.Constraint("Equal", 40, 42))
sketch1.addConstraint(Sketcher.Constraint("Equal", 41, 43))
sketch1.addConstraint(Sketcher.Constraint("Equal", 43, 44))
sketch1.addConstraint(Sketcher.Constraint("Equal", 42, 45))
sketch1.addConstraint(Sketcher.Constraint("Equal", 44, 46))
sketch1.addConstraint(Sketcher.Constraint("Equal", 46, 47))
sketch1.addConstraint(Sketcher.Constraint("Equal", 45, 48))
sketch1.addConstraint(Sketcher.Constraint("Equal", 47, 49))
sketch1.addConstraint(Sketcher.Constraint("Equal", 49, 50))
sketch1.addConstraint(Sketcher.Constraint("Equal", 48, 51))
sketch1.addConstraint(Sketcher.Constraint("Equal", 50, 52))
sketch1.addConstraint(Sketcher.Constraint("Equal", 52, 53))
sketch1.addConstraint(Sketcher.Constraint("Equal", 51, 54))
sketch1.addConstraint(Sketcher.Constraint("Equal", 53, 55))
sketch1.addConstraint(Sketcher.Constraint("Equal", 55, 56))
sketch1.addConstraint(Sketcher.Constraint("Equal", 54, 57))
sketch1.addConstraint(Sketcher.Constraint("Equal", 56, 58))
sketch1.addConstraint(Sketcher.Constraint("Equal", 58, 59))
sketch1.addConstraint(Sketcher.Constraint("Equal", 57, 60))
sketch1.addConstraint(Sketcher.Constraint("Symmetric", 0, 3, 31, 3, -1, 1))
sketch1.addConstraint(Sketcher.Constraint("Symmetric", 3, 3, 33, 3, -1, 1))
sketch1.addConstraint(Sketcher.Constraint("Symmetric", 6, 3, 35, 3, -1, 1))
sketch1.addConstraint(Sketcher.Constraint("Symmetric", 9, 3, 37, 3, -1, 1))
sketch1.addConstraint(Sketcher.Constraint("Symmetric", 12, 3, 39, 3, -1, 1))
sketch1.addConstraint(Sketcher.Constraint("Symmetric", 15, 3, 41, 3, -1, 1))
sketch1.addConstraint(Sketcher.Constraint("Symmetric", 18, 3, 43, 3, -1, 1))
sketch1.addConstraint(Sketcher.Constraint("Symmetric", 21, 3, 46, 3, -1, 1))
sketch1.addConstraint(Sketcher.Constraint("Symmetric", 23, 3, 49, 3, -1, 1))
sketch1.addConstraint(Sketcher.Constraint("Symmetric", 25, 3, 52, 3, -1, 1))
sketch1.addConstraint(Sketcher.Constraint("Symmetric", 27, 3, 55, 3, -1, 1))
sketch1.addConstraint(Sketcher.Constraint("Symmetric", 29, 3, 58, 3, -1, 1))
sketch1.addConstraint(Sketcher.Constraint("Symmetric", 15, 3, 21, 3, -2))
sketch1.addConstraint(Sketcher.Constraint("Symmetric", 12, 3, 23, 3, -2))
sketch1.addConstraint(Sketcher.Constraint("Symmetric", 9, 3, 25, 3, -2))
sketch1.addConstraint(Sketcher.Constraint("Symmetric", 6, 3, 27, 3, -2))
sketch1.addConstraint(Sketcher.Constraint("Symmetric", 3, 3, 29, 3, -2))
sketch1.addConstraint(Sketcher.Constraint("Symmetric", 18, 2, 43, 2, -1))
sketch1.addConstraint(Sketcher.Constraint("PointOnObject", 0, 3, -1))
sketch1.addConstraint(Sketcher.Constraint("PointOnObject", 0, 2, -1))
sketch1.addConstraint(Sketcher.Constraint("Horizontal", 29, 3, 3, 2))
sketch1.addConstraint(Sketcher.Constraint("Horizontal", 27, 3, 6, 2))
sketch1.addConstraint(Sketcher.Constraint("Horizontal", 25, 3, 9, 2))
sketch1.addConstraint(Sketcher.Constraint("Horizontal", 23, 3, 12, 2))
sketch1.addConstraint(Sketcher.Constraint("Horizontal", 21, 3, 15, 2))
sketch1.addConstraint(Sketcher.Constraint("Horizontal", 19, 3, 18, 2))
sketch1.addConstraint(Sketcher.Constraint("Horizontal", 47, 3, 46, 2))
sketch1.addConstraint(Sketcher.Constraint("Horizontal", 50, 3, 49, 2))
sketch1.addConstraint(Sketcher.Constraint("Horizontal", 53, 3, 52, 2))
sketch1.addConstraint(Sketcher.Constraint("Horizontal", 56, 3, 55, 2))
sketch1.addConstraint(Sketcher.Constraint("Horizontal", 59, 3, 58, 2))
sketch1.addConstraint(Sketcher.Constraint("Radius", 2, Q("0.2 in")))
sketch1.addConstraint(Sketcher.Constraint("DistanceX", -1, 1, 0, 3, Q("0.2 in")))
sketch1.addConstraint(Sketcher.Constraint("DistanceY", -1, 1, 6, 3, Q("0.1 in")))
sketch1.addConstraint(Sketcher.Constraint("DistanceX", -1, 1, 12, 3, Q("0.1 in")))
sketch1.addConstraint(Sketcher.Constraint("DistanceY", -1, 1, 18, 3, Q("0.2 in")))
sketch1.addConstraint(Sketcher.Constraint("Radius", 0, Q("0.0125 in")))
sketch1.addConstraint(Sketcher.Constraint("DistanceY", -1, 1, 3, 3, Q("1.314801 mm")))
sketch1.addConstraint(Sketcher.Constraint("DistanceX", -1, 1, 15, 3, Q("1.314801 mm")))
sketch1.addConstraint(Sketcher.Constraint("DistanceY", -1, 1, 2, 2, Q("1.005701 mm")))
sketch1.addConstraint(Sketcher.Constraint("DistanceX", -1, 1, 16, 2, Q("1.005701 mm")))
sketch1.addConstraint(Sketcher.Constraint("DistanceX", -1, 1, 6, 3, Q("4.399409 mm")))
sketch1.addConstraint(Sketcher.Constraint("DistanceY", -1, 1, 12, 3, Q("4.399409 mm")))
sketch1.addConstraint(Sketcher.Constraint("DistanceY", -1, 1, 8, 2, Q("3.36069 mm")))
sketch1.addConstraint(Sketcher.Constraint("DistanceX", -1, 1, 10, 2, Q("3.36069 mm")))
pad1 = body.newObject("PartDesign::Pad", "Pad")
pad1.Profile = sketch1
pad1.Length = Q("0.75 in")
pad1.Reversed = True

# Sketch on XY plane
sketch2 = body.newObject("Sketcher::SketchObject", "Sketch001")
sketch2.AttachmentSupport = (doc.getObject("XY_Plane"), [""])
sketch2.MapMode = "FlatFace"
add_polygon(sketch2, [(-0.8, -0.5), (-0.5, -1), (0.5, -1), (0.8, -0.5), (1.1, 0), (0.8, 0.5), (0.5, 1), (-0.5, 1), (-0.8, 0.5), (-1.1, 0)])  # lines 0-9
sketch2.addConstraint(Sketcher.Constraint("Horizontal", 1))
sketch2.addConstraint(Sketcher.Constraint("Horizontal", 6))
sketch2.addConstraint(Sketcher.Constraint("Symmetric", 0, 2, 5, 2, -1, 1))
sketch2.addConstraint(Sketcher.Constraint("Symmetric", 2, 2, 7, 2, -1, 1))
sketch2.addConstraint(Sketcher.Constraint("Symmetric", 3, 2, 8, 2, -1, 1))
sketch2.addConstraint(Sketcher.Constraint("Symmetric", 4, 2, 9, 2, -1, 1))
sketch2.addConstraint(Sketcher.Constraint("Symmetric", 4, 2, 7, 2, -2))
sketch2.addConstraint(Sketcher.Constraint("PointOnObject", 3, 2, -1))
sketch2.addConstraint(Sketcher.Constraint("Parallel", 2, 3))
sketch2.addConstraint(Sketcher.Constraint("Parallel", 0, 4))
sketch2.addConstraint(Sketcher.Constraint("Parallel", 3, 7))
sketch2.addConstraint(Sketcher.Constraint("Equal", 2, 3))
sketch2.addConstraint(Sketcher.Constraint("Angle", 0, Q("-60 deg")))
sketch2.addConstraint(Sketcher.Constraint("DistanceY", 1, 2, 5, 2, Q("0.075 in")))
sketch2.addConstraint(Sketcher.Constraint("DistanceX", 1, 1, 1, 2, Q("1.099852 mm")))
pocket1 = body.newObject("PartDesign::Pocket", "Pocket")
pocket1.Profile = sketch2
pocket1.Length = Q("0.25 in")

doc.recompute()
